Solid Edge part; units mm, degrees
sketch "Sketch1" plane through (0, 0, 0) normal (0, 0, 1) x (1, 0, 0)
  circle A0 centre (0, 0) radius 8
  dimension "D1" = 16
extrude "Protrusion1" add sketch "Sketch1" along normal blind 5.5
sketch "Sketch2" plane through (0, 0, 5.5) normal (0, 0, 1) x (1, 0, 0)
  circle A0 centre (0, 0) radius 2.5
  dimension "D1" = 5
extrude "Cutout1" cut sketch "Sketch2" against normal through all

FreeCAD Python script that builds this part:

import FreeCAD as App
import Part
import Sketcher

V = App.Vector
Q = App.Units.Quantity

doc = App.newDocument("Part")
body = doc.addObject("PartDesign::Body", "Body")

sketch1 = doc.addObject("Sketcher::SketchObject", "Sketch")
body.addObject(sketch1)
sketch1.AttachmentSupport = (doc.XY_Plane, [""])
sketch1.MapMode = "FlatFace"
sketch1.addGeometry(Part.Circle(V(0, 0, 0), V(0, 0, 1), 8), False)
sketch1.addConstraint([
    Sketcher.Constraint("Coincident", 0, 3, -1, 1),
    Sketcher.Constraint("Diameter", 0, Q("16 mm")),
])
pad1 = doc.addObject("PartDesign::Pad", "Pad")
body.addObject(pad1)
pad1.Profile = sketch1
pad1.Length = 5.5

sketch2 = doc.addObject("Sketcher::SketchObject", "Sketch001")
body.addObject(sketch2)
sketch2.AttachmentSupport = (doc.XY_Plane, [""])
sketch2.MapMode = "FlatFace"
sketch2.AttachmentOffset = App.Placement(V(0, 0, 5.5), App.Rotation())
sketch2.addGeometry(Part.Circle(V(0, 0, 0), V(0, 0, 1), 2.5), False)
sketch2.addConstraint([
    Sketcher.Constraint("Coincident", 0, 3, -1, 1),
    Sketcher.Constraint("Diameter", 0, Q("5 mm")),
])
pocket1 = doc.addObject("PartDesign::Pocket", "Pocket")
body.addObject(pocket1)
pocket1.Profile = sketch2
pocket1.Type = "ThroughAll"

doc.recompute()
